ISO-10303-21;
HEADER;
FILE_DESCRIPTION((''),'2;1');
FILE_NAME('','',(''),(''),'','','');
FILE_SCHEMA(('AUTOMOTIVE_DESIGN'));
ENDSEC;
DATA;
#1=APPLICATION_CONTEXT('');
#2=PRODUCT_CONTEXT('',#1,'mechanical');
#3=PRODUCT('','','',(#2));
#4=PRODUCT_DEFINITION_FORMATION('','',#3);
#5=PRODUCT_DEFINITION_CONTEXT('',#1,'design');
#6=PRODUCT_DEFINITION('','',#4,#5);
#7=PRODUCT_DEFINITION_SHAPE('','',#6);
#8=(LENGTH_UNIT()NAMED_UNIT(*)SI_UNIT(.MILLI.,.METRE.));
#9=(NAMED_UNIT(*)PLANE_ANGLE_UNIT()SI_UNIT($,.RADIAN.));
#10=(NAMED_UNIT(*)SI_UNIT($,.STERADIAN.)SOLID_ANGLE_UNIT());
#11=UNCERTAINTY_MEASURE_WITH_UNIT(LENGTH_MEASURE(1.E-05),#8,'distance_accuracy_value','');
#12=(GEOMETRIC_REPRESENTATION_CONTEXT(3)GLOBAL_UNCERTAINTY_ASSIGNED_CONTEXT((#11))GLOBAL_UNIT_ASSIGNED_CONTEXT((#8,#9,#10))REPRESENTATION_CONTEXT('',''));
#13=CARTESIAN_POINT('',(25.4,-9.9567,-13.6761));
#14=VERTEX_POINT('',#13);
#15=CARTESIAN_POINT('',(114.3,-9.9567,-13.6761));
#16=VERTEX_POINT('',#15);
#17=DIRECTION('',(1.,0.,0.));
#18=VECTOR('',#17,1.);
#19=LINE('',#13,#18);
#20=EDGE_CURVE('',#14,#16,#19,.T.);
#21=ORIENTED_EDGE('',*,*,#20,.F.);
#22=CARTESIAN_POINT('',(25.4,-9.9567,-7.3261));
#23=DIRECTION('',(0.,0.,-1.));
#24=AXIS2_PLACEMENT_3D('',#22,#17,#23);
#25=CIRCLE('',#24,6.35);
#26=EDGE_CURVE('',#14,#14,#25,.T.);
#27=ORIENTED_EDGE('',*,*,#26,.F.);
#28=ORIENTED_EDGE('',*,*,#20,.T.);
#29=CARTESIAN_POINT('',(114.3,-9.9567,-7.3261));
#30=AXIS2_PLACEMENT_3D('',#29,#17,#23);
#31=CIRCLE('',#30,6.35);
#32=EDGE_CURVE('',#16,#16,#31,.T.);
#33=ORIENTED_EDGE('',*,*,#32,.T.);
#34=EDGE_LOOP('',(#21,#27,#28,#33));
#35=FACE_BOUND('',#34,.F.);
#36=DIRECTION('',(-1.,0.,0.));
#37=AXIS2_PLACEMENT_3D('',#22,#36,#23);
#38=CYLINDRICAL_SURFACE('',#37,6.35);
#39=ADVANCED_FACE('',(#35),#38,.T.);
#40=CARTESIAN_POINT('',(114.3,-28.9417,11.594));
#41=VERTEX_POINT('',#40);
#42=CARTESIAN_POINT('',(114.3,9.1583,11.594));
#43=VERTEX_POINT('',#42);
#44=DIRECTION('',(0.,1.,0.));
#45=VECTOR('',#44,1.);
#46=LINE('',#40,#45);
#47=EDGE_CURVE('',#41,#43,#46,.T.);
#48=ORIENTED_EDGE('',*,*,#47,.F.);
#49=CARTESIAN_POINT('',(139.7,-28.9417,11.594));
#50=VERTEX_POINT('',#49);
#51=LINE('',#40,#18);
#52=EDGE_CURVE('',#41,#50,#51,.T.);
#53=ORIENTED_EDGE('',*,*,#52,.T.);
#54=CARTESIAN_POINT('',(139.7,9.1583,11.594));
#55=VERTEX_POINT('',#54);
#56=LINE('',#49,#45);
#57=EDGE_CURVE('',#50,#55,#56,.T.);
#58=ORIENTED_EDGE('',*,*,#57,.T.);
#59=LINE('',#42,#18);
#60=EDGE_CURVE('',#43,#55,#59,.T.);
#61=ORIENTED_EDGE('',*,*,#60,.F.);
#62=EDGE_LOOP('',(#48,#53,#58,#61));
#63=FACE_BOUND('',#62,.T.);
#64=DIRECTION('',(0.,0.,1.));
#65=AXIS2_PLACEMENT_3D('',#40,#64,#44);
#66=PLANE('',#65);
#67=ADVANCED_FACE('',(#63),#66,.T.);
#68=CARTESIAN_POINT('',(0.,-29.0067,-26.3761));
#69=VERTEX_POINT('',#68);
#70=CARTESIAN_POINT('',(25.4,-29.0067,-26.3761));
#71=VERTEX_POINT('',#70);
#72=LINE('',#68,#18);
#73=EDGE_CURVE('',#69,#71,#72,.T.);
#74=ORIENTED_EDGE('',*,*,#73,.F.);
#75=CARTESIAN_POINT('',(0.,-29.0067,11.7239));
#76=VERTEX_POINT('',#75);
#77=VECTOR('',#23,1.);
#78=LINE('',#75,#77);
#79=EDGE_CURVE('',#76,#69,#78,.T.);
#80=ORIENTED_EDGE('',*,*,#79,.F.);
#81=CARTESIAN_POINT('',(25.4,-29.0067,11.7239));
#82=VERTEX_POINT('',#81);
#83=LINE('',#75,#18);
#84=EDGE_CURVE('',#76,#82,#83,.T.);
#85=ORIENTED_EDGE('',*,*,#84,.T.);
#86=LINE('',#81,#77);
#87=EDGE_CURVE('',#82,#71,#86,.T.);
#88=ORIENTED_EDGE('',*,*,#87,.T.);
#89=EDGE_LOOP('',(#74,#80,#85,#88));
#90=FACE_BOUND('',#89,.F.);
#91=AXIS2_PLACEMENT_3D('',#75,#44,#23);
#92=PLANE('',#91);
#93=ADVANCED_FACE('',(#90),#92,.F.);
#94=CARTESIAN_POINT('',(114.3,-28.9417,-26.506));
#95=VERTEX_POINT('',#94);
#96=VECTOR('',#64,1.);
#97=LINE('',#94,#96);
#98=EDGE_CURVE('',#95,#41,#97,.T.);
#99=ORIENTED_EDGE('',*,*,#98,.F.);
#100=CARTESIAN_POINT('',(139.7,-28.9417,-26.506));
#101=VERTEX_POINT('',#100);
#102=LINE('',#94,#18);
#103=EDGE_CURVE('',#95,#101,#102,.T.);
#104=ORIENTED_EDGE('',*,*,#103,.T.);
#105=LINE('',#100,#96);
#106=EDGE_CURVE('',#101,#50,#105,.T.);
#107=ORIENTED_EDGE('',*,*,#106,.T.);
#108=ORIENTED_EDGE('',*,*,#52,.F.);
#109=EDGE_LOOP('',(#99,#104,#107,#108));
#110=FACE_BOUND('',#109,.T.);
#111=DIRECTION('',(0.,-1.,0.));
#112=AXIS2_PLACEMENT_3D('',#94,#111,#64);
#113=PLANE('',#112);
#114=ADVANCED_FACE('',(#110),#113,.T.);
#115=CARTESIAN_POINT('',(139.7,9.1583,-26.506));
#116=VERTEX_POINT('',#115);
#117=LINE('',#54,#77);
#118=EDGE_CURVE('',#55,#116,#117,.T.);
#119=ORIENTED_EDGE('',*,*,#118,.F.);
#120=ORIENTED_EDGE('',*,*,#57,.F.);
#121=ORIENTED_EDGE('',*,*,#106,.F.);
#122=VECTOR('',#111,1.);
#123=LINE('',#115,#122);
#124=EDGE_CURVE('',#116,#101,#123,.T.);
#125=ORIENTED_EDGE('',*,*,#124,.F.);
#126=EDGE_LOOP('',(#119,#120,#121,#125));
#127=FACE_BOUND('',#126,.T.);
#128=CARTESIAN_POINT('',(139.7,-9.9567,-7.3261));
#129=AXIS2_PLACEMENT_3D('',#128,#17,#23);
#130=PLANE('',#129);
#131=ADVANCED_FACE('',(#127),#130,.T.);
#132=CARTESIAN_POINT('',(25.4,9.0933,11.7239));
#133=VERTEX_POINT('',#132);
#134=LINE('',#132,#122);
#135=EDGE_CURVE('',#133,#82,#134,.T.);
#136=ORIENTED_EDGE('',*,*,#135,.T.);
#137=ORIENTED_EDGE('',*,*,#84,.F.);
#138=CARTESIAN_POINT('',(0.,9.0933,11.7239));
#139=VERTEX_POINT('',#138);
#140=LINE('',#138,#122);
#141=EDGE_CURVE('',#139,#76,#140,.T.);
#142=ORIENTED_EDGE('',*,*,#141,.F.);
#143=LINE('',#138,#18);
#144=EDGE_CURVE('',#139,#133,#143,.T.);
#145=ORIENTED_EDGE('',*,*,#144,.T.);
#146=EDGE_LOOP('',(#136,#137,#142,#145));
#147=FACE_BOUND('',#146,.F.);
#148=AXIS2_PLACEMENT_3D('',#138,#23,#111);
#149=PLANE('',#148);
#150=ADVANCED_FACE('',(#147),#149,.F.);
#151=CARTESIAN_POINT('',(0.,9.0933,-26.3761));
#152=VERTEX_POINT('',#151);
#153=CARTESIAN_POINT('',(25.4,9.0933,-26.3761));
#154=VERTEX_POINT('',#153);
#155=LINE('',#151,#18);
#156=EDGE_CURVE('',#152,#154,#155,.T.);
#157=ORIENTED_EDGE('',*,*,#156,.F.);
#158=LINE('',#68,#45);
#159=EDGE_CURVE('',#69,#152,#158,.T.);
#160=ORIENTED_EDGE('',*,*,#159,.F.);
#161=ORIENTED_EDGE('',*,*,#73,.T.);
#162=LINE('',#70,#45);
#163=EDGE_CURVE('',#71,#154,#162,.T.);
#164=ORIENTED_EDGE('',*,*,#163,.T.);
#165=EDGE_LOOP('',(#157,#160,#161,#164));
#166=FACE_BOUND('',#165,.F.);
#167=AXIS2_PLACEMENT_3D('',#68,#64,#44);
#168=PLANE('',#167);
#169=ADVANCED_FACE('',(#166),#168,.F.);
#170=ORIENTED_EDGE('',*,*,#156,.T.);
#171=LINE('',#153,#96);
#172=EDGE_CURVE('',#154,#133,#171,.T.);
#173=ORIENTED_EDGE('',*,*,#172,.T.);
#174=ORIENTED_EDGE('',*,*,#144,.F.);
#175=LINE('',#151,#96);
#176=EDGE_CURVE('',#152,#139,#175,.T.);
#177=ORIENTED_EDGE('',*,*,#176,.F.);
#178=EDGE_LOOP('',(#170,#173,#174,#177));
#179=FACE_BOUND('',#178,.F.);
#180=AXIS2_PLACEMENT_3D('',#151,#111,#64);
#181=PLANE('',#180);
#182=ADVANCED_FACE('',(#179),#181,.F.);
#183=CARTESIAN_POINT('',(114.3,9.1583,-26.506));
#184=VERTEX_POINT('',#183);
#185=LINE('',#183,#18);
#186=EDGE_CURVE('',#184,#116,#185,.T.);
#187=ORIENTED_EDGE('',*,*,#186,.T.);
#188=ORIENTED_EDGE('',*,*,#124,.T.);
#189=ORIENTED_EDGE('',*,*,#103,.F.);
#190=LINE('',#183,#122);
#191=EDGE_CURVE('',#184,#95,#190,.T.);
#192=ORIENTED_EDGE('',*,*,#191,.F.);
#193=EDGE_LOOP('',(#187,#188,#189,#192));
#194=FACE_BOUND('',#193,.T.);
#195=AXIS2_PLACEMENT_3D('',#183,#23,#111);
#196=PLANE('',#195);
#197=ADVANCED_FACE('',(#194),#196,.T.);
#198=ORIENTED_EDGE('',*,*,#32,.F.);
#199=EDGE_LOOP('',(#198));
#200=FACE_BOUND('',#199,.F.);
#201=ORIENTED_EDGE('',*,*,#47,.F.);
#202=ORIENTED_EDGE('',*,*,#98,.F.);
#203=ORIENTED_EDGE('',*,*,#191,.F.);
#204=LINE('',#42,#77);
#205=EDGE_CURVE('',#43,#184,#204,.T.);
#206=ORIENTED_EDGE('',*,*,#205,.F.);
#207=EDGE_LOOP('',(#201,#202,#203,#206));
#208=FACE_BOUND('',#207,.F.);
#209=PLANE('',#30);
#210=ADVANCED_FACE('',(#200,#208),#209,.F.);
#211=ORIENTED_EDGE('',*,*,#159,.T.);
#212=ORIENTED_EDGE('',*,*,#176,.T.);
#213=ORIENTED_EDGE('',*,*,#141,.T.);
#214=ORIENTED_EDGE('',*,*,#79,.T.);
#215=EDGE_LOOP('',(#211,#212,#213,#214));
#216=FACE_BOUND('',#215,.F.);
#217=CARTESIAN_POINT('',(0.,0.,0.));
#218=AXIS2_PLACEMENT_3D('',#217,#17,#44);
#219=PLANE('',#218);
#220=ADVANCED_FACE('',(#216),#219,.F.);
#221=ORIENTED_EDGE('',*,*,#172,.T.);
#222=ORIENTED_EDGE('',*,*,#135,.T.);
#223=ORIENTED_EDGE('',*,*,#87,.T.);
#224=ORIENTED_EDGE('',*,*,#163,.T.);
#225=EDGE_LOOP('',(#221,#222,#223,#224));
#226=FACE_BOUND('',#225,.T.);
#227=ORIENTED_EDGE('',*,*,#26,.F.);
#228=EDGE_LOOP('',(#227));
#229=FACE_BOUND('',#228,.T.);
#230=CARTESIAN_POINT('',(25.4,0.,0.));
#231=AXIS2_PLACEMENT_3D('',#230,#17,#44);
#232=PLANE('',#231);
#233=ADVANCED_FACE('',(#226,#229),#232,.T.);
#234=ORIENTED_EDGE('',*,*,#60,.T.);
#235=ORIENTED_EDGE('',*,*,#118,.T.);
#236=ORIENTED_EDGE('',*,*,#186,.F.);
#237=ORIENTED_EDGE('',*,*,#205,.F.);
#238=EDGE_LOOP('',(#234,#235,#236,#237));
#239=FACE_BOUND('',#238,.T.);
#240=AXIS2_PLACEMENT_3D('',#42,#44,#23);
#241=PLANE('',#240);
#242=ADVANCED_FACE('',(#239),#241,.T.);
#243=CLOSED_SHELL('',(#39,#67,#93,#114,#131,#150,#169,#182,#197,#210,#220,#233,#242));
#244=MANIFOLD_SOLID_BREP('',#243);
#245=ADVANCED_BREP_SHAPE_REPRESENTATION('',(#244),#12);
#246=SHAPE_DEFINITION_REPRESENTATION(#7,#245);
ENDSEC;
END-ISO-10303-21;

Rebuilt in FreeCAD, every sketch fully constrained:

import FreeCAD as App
import Part
import Sketcher
Q = App.Units.Quantity


def add_polygon(sketch, points):
    """Adds a closed chain of lines whose ends are joined by coincident constraints."""
    first, n = sketch.GeometryCount, len(points)
    for a, b in zip(points, points[1:] + points[:1]):
        sketch.addGeometry(Part.LineSegment(App.Vector(*a, 0), App.Vector(*b, 0)), False)
    for i in range(n):
        sketch.addConstraint(Sketcher.Constraint("Coincident", first + i, 2, first + (i + 1) % n, 1))

doc = App.newDocument("Part")
body = doc.addObject("PartDesign::Body", "Body")

# Sketch on YZ plane
sketch1 = body.newObject("Sketcher::SketchObject", "Sketch")
sketch1.AttachmentSupport = (doc.getObject("YZ_Plane"), [""])
sketch1.MapMode = "FlatFace"
add_polygon(sketch1, [(9, -26), (9, 12), (-29, 12), (-29, -26)])  # lines 0-3
sketch1.addConstraint([
    Sketcher.Constraint("Vertical", 0),
    Sketcher.Constraint("Horizontal", 1),
    Sketcher.Constraint("Vertical", 2),
    Sketcher.Constraint("Horizontal", 3),
    Sketcher.Constraint("Equal", 3, 0),
    Sketcher.Constraint("DistanceX", 1, 2, 1, 1, Q("1.5 in")),
    Sketcher.Constraint("DistanceX", -1, 1, 0, 2, Q("0.358 in")),
    Sketcher.Constraint("DistanceY", -1, 1, 0, 2, 11.724),
])
pad1 = body.newObject("PartDesign::Pad", "Pad")
pad1.Profile = sketch1
pad1.Length = Q("1 in")

# Sketch on YZ plane
sketch2 = body.newObject("Sketcher::SketchObject", "Sketch001")
sketch2.AttachmentSupport = (doc.getObject("YZ_Plane"), [""])
sketch2.MapMode = "FlatFace"
sketch2.AttachmentOffset = App.Placement(App.Vector(0, 0, 1 * 25.4), App.Rotation())
sketch2.addGeometry(Part.Circle(App.Vector(-10, -7, 0), App.Vector(0, 0, 1), 6), False)
sketch2.addConstraint([
    Sketcher.Constraint("Diameter", 0, Q("0.5 in")),
    Sketcher.Constraint("DistanceX", 0, 3, -1, 1, Q("0.392 in")),
    Sketcher.Constraint("DistanceY", 0, 3, -1, 1, 7.326),
])
pad2 = body.newObject("PartDesign::Pad", "Pad001")
pad2.Profile = sketch2
pad2.Length = Q("3.5 in")

# Sketch on YZ plane
sketch3 = body.newObject("Sketcher::SketchObject", "Sketch002")
sketch3.AttachmentSupport = (doc.getObject("YZ_Plane"), [""])
sketch3.MapMode = "FlatFace"
sketch3.AttachmentOffset = App.Placement(App.Vector(0, 0, 4.5 * 25.4), App.Rotation())
add_polygon(sketch3, [(9, -27), (9, 12), (-29, 12), (-29, -27)])  # lines 0-3
sketch3.addConstraint([
    Sketcher.Constraint("Vertical", 0),
    Sketcher.Constraint("Horizontal", 1),
    Sketcher.Constraint("Vertical", 2),
    Sketcher.Constraint("Horizontal", 3),
    Sketcher.Constraint("Equal", 3, 0),
    Sketcher.Constraint("DistanceX", 1, 2, 1, 1, Q("1.5 in")),
    Sketcher.Constraint("DistanceX", -1, 1, 0, 2, 9.1583),
    Sketcher.Constraint("DistanceY", -1, 1, 0, 2, 11.594),
])
pad3 = body.newObject("PartDesign::Pad", "Pad002")
pad3.Profile = sketch3
pad3.Length = Q("1 in")

doc.recompute()
